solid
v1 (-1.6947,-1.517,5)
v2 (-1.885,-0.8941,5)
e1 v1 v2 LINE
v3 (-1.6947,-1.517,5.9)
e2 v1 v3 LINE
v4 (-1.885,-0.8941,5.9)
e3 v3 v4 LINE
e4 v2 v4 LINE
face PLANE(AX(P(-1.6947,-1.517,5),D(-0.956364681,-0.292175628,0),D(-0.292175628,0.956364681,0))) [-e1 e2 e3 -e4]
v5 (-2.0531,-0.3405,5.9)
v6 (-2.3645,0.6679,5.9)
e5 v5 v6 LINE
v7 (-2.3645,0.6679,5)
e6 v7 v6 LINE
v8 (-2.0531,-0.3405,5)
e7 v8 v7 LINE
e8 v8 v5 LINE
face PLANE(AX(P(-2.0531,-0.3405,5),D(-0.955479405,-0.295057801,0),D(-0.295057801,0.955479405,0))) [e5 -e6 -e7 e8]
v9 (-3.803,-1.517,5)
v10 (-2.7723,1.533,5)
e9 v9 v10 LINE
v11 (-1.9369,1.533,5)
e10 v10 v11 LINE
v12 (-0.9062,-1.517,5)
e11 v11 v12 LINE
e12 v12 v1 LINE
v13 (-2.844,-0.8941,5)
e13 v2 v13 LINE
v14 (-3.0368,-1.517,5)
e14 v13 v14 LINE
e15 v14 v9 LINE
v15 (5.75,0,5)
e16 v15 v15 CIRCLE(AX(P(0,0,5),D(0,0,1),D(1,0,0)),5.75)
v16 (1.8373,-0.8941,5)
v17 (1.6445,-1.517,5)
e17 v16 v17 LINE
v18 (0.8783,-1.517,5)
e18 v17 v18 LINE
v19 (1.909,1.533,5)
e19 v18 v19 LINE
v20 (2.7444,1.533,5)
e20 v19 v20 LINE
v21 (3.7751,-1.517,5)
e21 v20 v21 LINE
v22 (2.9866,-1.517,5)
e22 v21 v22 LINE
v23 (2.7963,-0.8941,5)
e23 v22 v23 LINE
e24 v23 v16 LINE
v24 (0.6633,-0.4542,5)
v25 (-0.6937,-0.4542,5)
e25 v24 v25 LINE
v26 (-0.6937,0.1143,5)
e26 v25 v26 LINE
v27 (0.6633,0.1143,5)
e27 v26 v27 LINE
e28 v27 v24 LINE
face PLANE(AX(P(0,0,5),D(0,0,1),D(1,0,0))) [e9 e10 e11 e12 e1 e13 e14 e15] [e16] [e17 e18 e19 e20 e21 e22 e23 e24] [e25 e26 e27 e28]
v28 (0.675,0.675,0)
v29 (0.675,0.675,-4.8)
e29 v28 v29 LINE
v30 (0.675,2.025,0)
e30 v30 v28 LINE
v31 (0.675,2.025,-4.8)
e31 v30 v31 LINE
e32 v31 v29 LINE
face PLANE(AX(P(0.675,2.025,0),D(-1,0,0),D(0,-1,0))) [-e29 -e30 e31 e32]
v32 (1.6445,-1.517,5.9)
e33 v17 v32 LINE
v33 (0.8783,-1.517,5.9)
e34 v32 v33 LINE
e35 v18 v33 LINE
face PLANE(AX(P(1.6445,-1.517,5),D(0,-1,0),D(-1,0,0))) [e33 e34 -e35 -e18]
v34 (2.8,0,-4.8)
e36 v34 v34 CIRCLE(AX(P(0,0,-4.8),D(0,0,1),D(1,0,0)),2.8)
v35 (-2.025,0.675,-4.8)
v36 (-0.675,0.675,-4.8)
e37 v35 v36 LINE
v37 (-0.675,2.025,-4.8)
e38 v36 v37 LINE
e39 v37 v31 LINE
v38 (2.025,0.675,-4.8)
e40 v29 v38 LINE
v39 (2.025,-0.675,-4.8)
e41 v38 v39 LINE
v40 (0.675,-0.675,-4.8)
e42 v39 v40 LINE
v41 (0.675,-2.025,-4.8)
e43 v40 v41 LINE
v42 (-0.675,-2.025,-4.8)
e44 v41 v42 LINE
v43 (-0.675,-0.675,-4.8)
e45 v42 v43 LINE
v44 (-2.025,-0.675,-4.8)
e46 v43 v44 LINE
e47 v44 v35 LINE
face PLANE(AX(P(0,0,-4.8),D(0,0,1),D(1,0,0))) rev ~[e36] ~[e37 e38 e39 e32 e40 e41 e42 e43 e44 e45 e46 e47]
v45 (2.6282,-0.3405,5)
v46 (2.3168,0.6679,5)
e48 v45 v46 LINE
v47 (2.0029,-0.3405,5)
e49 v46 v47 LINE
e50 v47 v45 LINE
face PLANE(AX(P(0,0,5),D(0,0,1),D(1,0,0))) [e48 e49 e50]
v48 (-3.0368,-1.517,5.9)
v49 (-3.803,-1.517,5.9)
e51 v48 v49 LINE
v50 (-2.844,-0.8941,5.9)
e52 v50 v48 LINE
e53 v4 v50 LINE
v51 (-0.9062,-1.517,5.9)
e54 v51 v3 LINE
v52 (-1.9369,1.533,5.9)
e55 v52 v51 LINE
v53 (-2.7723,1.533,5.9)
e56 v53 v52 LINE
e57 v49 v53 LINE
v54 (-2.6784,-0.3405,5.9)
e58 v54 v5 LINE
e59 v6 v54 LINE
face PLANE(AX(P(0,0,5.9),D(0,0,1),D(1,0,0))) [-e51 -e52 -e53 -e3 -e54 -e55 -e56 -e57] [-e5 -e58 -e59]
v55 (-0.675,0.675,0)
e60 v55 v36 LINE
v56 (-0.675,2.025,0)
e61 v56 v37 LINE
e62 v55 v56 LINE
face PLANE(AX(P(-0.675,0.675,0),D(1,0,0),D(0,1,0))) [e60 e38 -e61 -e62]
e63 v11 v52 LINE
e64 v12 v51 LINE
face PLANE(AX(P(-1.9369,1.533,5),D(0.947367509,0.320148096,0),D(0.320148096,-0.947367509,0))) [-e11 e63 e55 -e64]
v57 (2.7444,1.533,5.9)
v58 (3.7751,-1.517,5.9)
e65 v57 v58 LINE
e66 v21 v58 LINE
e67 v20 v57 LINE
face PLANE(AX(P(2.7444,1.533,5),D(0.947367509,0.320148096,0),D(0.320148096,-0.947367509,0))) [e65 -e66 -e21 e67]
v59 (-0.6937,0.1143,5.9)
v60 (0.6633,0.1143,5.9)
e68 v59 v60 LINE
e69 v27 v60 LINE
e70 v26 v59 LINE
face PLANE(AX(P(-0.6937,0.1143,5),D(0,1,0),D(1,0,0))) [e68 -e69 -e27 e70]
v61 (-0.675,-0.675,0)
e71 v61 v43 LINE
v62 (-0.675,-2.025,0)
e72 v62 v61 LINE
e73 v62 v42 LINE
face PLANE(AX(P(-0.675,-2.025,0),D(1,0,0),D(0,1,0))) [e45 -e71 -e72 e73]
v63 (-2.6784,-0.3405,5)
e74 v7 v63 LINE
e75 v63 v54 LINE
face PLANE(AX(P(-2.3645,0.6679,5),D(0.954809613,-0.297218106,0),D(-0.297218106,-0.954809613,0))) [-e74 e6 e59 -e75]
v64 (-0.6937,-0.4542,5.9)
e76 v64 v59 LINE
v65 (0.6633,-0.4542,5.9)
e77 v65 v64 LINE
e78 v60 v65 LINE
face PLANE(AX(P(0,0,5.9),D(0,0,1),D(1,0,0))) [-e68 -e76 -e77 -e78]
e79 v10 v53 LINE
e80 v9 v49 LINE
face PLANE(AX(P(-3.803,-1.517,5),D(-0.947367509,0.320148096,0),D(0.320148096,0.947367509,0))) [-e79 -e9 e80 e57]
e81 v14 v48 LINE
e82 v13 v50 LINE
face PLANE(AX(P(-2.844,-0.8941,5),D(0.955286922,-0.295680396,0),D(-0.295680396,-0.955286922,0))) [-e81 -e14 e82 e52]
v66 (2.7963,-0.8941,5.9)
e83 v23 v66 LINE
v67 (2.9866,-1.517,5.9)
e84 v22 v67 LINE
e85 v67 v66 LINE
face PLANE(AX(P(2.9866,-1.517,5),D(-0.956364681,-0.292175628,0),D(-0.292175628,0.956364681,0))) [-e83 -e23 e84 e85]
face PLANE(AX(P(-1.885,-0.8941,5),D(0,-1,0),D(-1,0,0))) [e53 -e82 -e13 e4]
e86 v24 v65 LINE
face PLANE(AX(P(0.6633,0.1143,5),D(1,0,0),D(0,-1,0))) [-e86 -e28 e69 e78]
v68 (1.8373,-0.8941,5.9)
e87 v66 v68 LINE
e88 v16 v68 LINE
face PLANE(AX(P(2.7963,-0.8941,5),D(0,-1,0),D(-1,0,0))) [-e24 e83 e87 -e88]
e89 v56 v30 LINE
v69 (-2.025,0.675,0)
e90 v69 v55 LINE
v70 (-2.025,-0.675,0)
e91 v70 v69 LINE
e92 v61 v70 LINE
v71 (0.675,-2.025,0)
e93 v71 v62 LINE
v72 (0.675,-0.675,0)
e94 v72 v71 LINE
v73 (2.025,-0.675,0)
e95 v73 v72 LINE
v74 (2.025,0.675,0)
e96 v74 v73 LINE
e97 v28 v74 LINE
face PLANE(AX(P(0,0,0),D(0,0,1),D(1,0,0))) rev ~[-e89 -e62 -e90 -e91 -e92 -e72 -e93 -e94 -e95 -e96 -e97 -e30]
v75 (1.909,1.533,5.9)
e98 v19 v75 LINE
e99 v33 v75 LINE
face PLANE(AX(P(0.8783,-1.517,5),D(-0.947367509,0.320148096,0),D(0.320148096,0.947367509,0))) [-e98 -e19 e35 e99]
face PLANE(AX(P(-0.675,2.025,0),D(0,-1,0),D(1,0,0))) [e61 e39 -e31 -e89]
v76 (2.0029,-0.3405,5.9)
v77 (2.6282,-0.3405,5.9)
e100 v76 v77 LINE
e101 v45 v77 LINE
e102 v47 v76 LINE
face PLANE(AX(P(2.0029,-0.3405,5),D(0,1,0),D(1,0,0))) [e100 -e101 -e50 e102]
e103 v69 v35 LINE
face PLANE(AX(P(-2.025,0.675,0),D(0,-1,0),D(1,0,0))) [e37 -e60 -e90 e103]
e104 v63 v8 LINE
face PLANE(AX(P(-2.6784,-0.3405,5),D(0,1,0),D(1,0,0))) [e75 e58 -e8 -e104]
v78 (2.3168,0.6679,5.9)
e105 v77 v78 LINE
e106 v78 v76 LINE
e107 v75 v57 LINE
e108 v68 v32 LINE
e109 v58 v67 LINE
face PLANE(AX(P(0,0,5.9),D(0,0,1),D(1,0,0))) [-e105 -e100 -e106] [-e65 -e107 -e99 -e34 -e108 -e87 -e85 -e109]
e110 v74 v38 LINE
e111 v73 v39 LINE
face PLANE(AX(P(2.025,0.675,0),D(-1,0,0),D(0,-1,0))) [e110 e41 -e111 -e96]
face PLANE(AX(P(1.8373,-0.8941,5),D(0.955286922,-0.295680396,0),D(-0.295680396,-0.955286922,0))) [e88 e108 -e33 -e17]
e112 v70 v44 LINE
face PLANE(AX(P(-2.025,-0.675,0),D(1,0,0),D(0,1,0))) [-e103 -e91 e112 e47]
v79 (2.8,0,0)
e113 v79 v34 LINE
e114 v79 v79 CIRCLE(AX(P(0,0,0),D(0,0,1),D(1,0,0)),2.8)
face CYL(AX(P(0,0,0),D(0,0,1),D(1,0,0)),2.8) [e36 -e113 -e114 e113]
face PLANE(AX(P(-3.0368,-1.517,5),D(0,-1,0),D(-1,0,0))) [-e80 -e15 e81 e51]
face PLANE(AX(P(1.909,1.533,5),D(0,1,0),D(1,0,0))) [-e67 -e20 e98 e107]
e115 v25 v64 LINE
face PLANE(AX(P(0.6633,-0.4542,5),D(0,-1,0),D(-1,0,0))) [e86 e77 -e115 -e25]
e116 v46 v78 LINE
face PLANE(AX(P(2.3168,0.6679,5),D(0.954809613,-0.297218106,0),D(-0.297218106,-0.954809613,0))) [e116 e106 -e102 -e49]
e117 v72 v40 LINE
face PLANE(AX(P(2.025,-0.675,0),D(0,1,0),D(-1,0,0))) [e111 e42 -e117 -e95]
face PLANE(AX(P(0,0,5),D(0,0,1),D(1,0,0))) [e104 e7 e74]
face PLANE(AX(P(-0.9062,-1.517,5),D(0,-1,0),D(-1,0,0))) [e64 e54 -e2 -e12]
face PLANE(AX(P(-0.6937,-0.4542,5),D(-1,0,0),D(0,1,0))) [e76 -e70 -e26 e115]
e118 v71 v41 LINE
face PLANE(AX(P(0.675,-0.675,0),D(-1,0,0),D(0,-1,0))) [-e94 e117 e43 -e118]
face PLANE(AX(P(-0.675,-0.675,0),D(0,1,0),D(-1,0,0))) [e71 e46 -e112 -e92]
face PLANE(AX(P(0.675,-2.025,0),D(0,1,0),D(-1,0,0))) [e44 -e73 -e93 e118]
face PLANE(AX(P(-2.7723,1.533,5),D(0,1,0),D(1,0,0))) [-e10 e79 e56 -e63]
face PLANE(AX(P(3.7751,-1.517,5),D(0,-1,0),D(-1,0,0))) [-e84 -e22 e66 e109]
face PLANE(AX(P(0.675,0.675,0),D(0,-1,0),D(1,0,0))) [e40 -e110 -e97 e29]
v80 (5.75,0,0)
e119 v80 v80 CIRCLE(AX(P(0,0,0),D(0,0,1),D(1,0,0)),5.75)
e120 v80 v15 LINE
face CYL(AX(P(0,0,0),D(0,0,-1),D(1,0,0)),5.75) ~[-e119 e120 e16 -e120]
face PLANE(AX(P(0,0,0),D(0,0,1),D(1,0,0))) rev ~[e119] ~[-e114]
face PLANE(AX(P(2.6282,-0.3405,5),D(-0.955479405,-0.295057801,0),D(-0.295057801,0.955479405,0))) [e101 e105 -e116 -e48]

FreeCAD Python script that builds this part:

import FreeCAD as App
import Part
import Sketcher

V = App.Vector
Q = App.Units.Quantity

doc = App.newDocument("Part")
body = doc.addObject("PartDesign::Body", "Body")

sketch1 = body.newObject("Sketcher::SketchObject", "Sketch")
sketch1.AttachmentSupport = (doc.getObject("XY_Plane"), [""])
sketch1.MapMode = "FlatFace"
sketch1.addGeometry(Part.Circle(V(0, 0, 0), V(0, 0, 1), 6), False)
sketch1.addConstraint(Sketcher.Constraint("Coincident", 0, 3, -1, 1))
sketch1.addConstraint(Sketcher.Constraint("Diameter", 0, 11.5))
pad1 = body.newObject("PartDesign::Pad", "Pad")
pad1.Profile = sketch1
pad1.Length = 5

sketch2 = body.newObject("Sketcher::SketchObject", "Sketch001")
sketch2.AttachmentSupport = (doc.getObject("XY_Plane"), [""])
sketch2.MapMode = "FlatFace"
sketch2.addGeometry(Part.Circle(V(0, 0, 0), V(0, 0, 1), 2.8), False)
sketch2.addGeometry(Part.LineSegment(V(-2, 0.7, 0), V(-0.7, 0.7, 0)), False)
sketch2.addGeometry(Part.LineSegment(V(-0.7, 0.7, 0), V(-0.7, 2, 0)), False)
sketch2.addGeometry(Part.LineSegment(V(-0.7, 2, 0), V(0.7, 2, 0)), False)
sketch2.addGeometry(Part.LineSegment(V(0.7, 2, 0), V(0.7, 0.7, 0)), False)
sketch2.addGeometry(Part.LineSegment(V(0.7, 0.7, 0), V(2, 0.7, 0)), False)
sketch2.addGeometry(Part.LineSegment(V(2, 0.7, 0), V(2, -0.7, 0)), False)
sketch2.addGeometry(Part.LineSegment(V(2, -0.7, 0), V(0.7, -0.7, 0)), False)
sketch2.addGeometry(Part.LineSegment(V(0.7, -0.7, 0), V(0.7, -2, 0)), False)
sketch2.addGeometry(Part.LineSegment(V(0.7, -2, 0), V(-0.7, -2, 0)), False)
sketch2.addGeometry(Part.LineSegment(V(-0.7, -2, 0), V(-0.7, -0.7, 0)), False)
sketch2.addGeometry(Part.LineSegment(V(-0.7, -0.7, 0), V(-2, -0.7, 0)), False)
sketch2.addGeometry(Part.LineSegment(V(-2, -0.7, 0), V(-2, 0.7, 0)), False)
sketch2.addConstraint(Sketcher.Constraint("Coincident", 1, 2, 2, 1))
sketch2.addConstraint(Sketcher.Constraint("Coincident", 2, 2, 3, 1))
sketch2.addConstraint(Sketcher.Constraint("Coincident", 3, 2, 4, 1))
sketch2.addConstraint(Sketcher.Constraint("Coincident", 4, 2, 5, 1))
sketch2.addConstraint(Sketcher.Constraint("Coincident", 5, 2, 6, 1))
sketch2.addConstraint(Sketcher.Constraint("Coincident", 6, 2, 7, 1))
sketch2.addConstraint(Sketcher.Constraint("Coincident", 7, 2, 8, 1))
sketch2.addConstraint(Sketcher.Constraint("Coincident", 8, 2, 9, 1))
sketch2.addConstraint(Sketcher.Constraint("Coincident", 9, 2, 10, 1))
sketch2.addConstraint(Sketcher.Constraint("Coincident", 10, 2, 11, 1))
sketch2.addConstraint(Sketcher.Constraint("Coincident", 11, 2, 12, 1))
sketch2.addConstraint(Sketcher.Constraint("Coincident", 12, 2, 1, 1))
sketch2.addConstraint(Sketcher.Constraint("Horizontal", 1))
sketch2.addConstraint(Sketcher.Constraint("Vertical", 2))
sketch2.addConstraint(Sketcher.Constraint("Horizontal", 3))
sketch2.addConstraint(Sketcher.Constraint("Vertical", 4))
sketch2.addConstraint(Sketcher.Constraint("Horizontal", 5))
sketch2.addConstraint(Sketcher.Constraint("Vertical", 6))
sketch2.addConstraint(Sketcher.Constraint("Horizontal", 7))
sketch2.addConstraint(Sketcher.Constraint("Vertical", 8))
sketch2.addConstraint(Sketcher.Constraint("Horizontal", 9))
sketch2.addConstraint(Sketcher.Constraint("Vertical", 10))
sketch2.addConstraint(Sketcher.Constraint("Horizontal", 11))
sketch2.addConstraint(Sketcher.Constraint("Vertical", 12))
sketch2.addConstraint(Sketcher.Constraint("Coincident", 0, 3, -1, 1))
sketch2.addConstraint(Sketcher.Constraint("Symmetric", 1, 2, 7, 2, -1, 1))
sketch2.addConstraint(Sketcher.Constraint("Symmetric", 3, 2, 9, 2, -1, 1))
sketch2.addConstraint(Sketcher.Constraint("Symmetric", 5, 2, 11, 2, -1, 1))
sketch2.addConstraint(Sketcher.Constraint("Symmetric", 1, 2, 4, 2, -2))
sketch2.addConstraint(Sketcher.Constraint("Equal", 1, 3))
sketch2.addConstraint(Sketcher.Constraint("Equal", 11, 2))
sketch2.addConstraint(Sketcher.Constraint("Equal", 4, 6))
sketch2.addConstraint(Sketcher.Constraint("Diameter", 0, 5.6))
sketch2.addConstraint(Sketcher.Constraint("DistanceX", 1, 1, 1, 2, 1.35))
pad2 = body.newObject("PartDesign::Pad", "Pad001")
pad2.Profile = sketch2
pad2.Length = 4.8
pad2.Reversed = True

sketch3 = body.newObject("Sketcher::SketchObject", "Sketch002")
sketch3.AttachmentSupport = (doc.getObject("XY_Plane"), [""])
sketch3.MapMode = "FlatFace"
sketch3.AttachmentOffset = App.Placement(V(0, 0, 5), App.Rotation())
sketch3.addGeometry(Part.LineSegment(V(-2.8, 1.5, 0), V(-3.8, -1.5, 0)), False)
sketch3.addGeometry(Part.LineSegment(V(-3.8, -1.5, 0), V(-3, -1.5, 0)), False)
sketch3.addGeometry(Part.LineSegment(V(-3, -1.5, 0), V(-2.8, -0.9, 0)), False)
sketch3.addGeometry(Part.LineSegment(V(-2.8, -0.9, 0), V(-1.9, -0.9, 0)), False)
sketch3.addGeometry(Part.LineSegment(V(-1.9, -0.9, 0), V(-1.7, -1.5, 0)), False)
sketch3.addGeometry(Part.LineSegment(V(-1.7, -1.5, 0), V(-0.9, -1.5, 0)), False)
sketch3.addGeometry(Part.LineSegment(V(-0.9, -1.5, 0), V(-1.9, 1.5, 0)), False)
sketch3.addGeometry(Part.LineSegment(V(-1.9, 1.5, 0), V(-2.8, 1.5, 0)), False)
sketch3.addGeometry(Part.LineSegment(V(-2.4, 0.7, 0), V(-2.1, -0.3, 0)), False)
sketch3.addGeometry(Part.LineSegment(V(-2.1, -0.3, 0), V(-2.7, -0.3, 0)), False)
sketch3.addGeometry(Part.LineSegment(V(-2.7, -0.3, 0), V(-2.4, 0.7, 0)), False)
sketch3.addGeometry(Part.LineSegment(V(-0.7, -0.5, 0), V(0.7, -0.5, 0)), False)
sketch3.addGeometry(Part.LineSegment(V(0.7, -0.5, 0), V(0.7, 0.1, 0)), False)
sketch3.addGeometry(Part.LineSegment(V(0.7, 0.1, 0), V(-0.7, 0.1, 0)), False)
sketch3.addGeometry(Part.LineSegment(V(-0.7, 0.1, 0), V(-0.7, -0.5, 0)), False)
sketch3.addGeometry(Part.LineSegment(V(1.9, 1.5, 0), V(0.9, -1.5, 0)), False)
sketch3.addGeometry(Part.LineSegment(V(0.9, -1.5, 0), V(1.6, -1.5, 0)), False)
sketch3.addGeometry(Part.LineSegment(V(1.6, -1.5, 0), V(1.8, -0.9, 0)), False)
sketch3.addGeometry(Part.LineSegment(V(1.8, -0.9, 0), V(2.8, -0.9, 0)), False)
sketch3.addGeometry(Part.LineSegment(V(2.8, -0.9, 0), V(3, -1.5, 0)), False)
sketch3.addGeometry(Part.LineSegment(V(3, -1.5, 0), V(3.8, -1.5, 0)), False)
sketch3.addGeometry(Part.LineSegment(V(3.8, -1.5, 0), V(2.7, 1.5, 0)), False)
sketch3.addGeometry(Part.LineSegment(V(2.7, 1.5, 0), V(1.9, 1.5, 0)), False)
sketch3.addGeometry(Part.LineSegment(V(2.3, 0.7, 0), V(2.6, -0.3, 0)), False)
sketch3.addGeometry(Part.LineSegment(V(2.6, -0.3, 0), V(2, -0.3, 0)), False)
sketch3.addGeometry(Part.LineSegment(V(2, -0.3, 0), V(2.3, 0.7, 0)), False)
sketch3.addConstraint(Sketcher.Constraint("Coincident", 0, 2, 1, 1))
sketch3.addConstraint(Sketcher.Constraint("Coincident", 1, 2, 2, 1))
sketch3.addConstraint(Sketcher.Constraint("Coincident", 2, 2, 3, 1))
sketch3.addConstraint(Sketcher.Constraint("Coincident", 3, 2, 4, 1))
sketch3.addConstraint(Sketcher.Constraint("Coincident", 4, 2, 5, 1))
sketch3.addConstraint(Sketcher.Constraint("Coincident", 5, 2, 6, 1))
sketch3.addConstraint(Sketcher.Constraint("Coincident", 6, 2, 7, 1))
sketch3.addConstraint(Sketcher.Constraint("Coincident", 7, 2, 0, 1))
sketch3.addConstraint(Sketcher.Constraint("Coincident", 8, 2, 9, 1))
sketch3.addConstraint(Sketcher.Constraint("Coincident", 9, 2, 10, 1))
sketch3.addConstraint(Sketcher.Constraint("Coincident", 10, 2, 8, 1))
sketch3.addConstraint(Sketcher.Constraint("Coincident", 11, 2, 12, 1))
sketch3.addConstraint(Sketcher.Constraint("Coincident", 12, 2, 13, 1))
sketch3.addConstraint(Sketcher.Constraint("Coincident", 13, 2, 14, 1))
sketch3.addConstraint(Sketcher.Constraint("Coincident", 14, 2, 11, 1))
sketch3.addConstraint(Sketcher.Constraint("Coincident", 15, 2, 16, 1))
sketch3.addConstraint(Sketcher.Constraint("Coincident", 16, 2, 17, 1))
sketch3.addConstraint(Sketcher.Constraint("Coincident", 17, 2, 18, 1))
sketch3.addConstraint(Sketcher.Constraint("Coincident", 18, 2, 19, 1))
sketch3.addConstraint(Sketcher.Constraint("Coincident", 19, 2, 20, 1))
sketch3.addConstraint(Sketcher.Constraint("Coincident", 20, 2, 21, 1))
sketch3.addConstraint(Sketcher.Constraint("Coincident", 21, 2, 22, 1))
sketch3.addConstraint(Sketcher.Constraint("Coincident", 22, 2, 15, 1))
sketch3.addConstraint(Sketcher.Constraint("Coincident", 23, 2, 24, 1))
sketch3.addConstraint(Sketcher.Constraint("Coincident", 24, 2, 25, 1))
sketch3.addConstraint(Sketcher.Constraint("Coincident", 25, 2, 23, 1))
sketch3.addConstraint(Sketcher.Constraint("Horizontal", 1))
sketch3.addConstraint(Sketcher.Constraint("Horizontal", 3))
sketch3.addConstraint(Sketcher.Constraint("Horizontal", 5))
sketch3.addConstraint(Sketcher.Constraint("Horizontal", 7))
sketch3.addConstraint(Sketcher.Constraint("Horizontal", 9))
sketch3.addConstraint(Sketcher.Constraint("Horizontal", 11))
sketch3.addConstraint(Sketcher.Constraint("Vertical", 12))
sketch3.addConstraint(Sketcher.Constraint("Horizontal", 13))
sketch3.addConstraint(Sketcher.Constraint("Vertical", 14))
sketch3.addConstraint(Sketcher.Constraint("Horizontal", 16))
sketch3.addConstraint(Sketcher.Constraint("Horizontal", 18))
sketch3.addConstraint(Sketcher.Constraint("Horizontal", 20))
sketch3.addConstraint(Sketcher.Constraint("Horizontal", 22))
sketch3.addConstraint(Sketcher.Constraint("Horizontal", 24))
sketch3.addConstraint(Sketcher.Constraint("Parallel", 0, 15))
sketch3.addConstraint(Sketcher.Constraint("Parallel", 2, 17))
sketch3.addConstraint(Sketcher.Constraint("Parallel", 4, 19))
sketch3.addConstraint(Sketcher.Constraint("Parallel", 6, 21))
sketch3.addConstraint(Sketcher.Constraint("Parallel", 8, 23))
sketch3.addConstraint(Sketcher.Constraint("Parallel", 10, 25))
sketch3.addConstraint(Sketcher.Constraint("Horizontal", 1, 2, 4, 2))
sketch3.addConstraint(Sketcher.Constraint("Horizontal", 5, 2, 15, 2))
sketch3.addConstraint(Sketcher.Constraint("Horizontal", 3, 2, 17, 2))
sketch3.addConstraint(Sketcher.Constraint("Horizontal", 16, 2, 19, 2))
sketch3.addConstraint(Sketcher.Constraint("Horizontal", 7, 2, 21, 2))
sketch3.addConstraint(Sketcher.Constraint("Horizontal", 9, 2, 23, 2))
sketch3.addConstraint(Sketcher.Constraint("Horizontal", 10, 2, 25, 2))
sketch3.addConstraint(Sketcher.Constraint("Equal", 1, 16))
sketch3.addConstraint(Sketcher.Constraint("Equal", 3, 18))
sketch3.addConstraint(Sketcher.Constraint("Equal", 5, 20))
sketch3.addConstraint(Sketcher.Constraint("Equal", 0, 6))
sketch3.addConstraint(Sketcher.Constraint("Angle", 8, Q("-72.839 deg")))
sketch3.addConstraint(Sketcher.Constraint("Angle", 10, Q("72.7094 deg")))
sketch3.addConstraint(Sketcher.Constraint("DistanceX", 1, 2, 6, 2, 1.1))
sketch3.addConstraint(Sketcher.Constraint("DistanceX", 3, 1, 3, 2, 0.959))
sketch3.addConstraint(Sketcher.Constraint("DistanceX", 11, 1, 11, 2, 1.357))
sketch3.addConstraint(Sketcher.Constraint("DistanceY", 4, 2, 6, 2, 3.05))
sketch3.addConstraint(Sketcher.Constraint("DistanceY", 3, 2, 11, 2, 0.44))
sketch3.addConstraint(Sketcher.Constraint("Distance", 2, 0.652))
sketch3.addConstraint(Sketcher.Constraint("DistanceX", 1, 1, 1, 2, 0.7662))
sketch3.addConstraint(Sketcher.Constraint("DistanceX", 5, 1, 5, 2, 0.7885))
sketch3.addConstraint(Sketcher.Constraint("DistanceX", 7, 2, 7, 1, 0.8354))
sketch3.addConstraint(Sketcher.Constraint("DistanceX", 9, 2, 9, 1, 0.6253))
sketch3.addConstraint(Sketcher.Constraint("DistanceY", 12, 1, 12, 2, 0.5685))
sketch3.addConstraint(Sketcher.Constraint("DistanceX", 0, 2, -1, 1, 3.803))
sketch3.addConstraint(Sketcher.Constraint("DistanceY", 0, 2, -1, 1, 1.517))
sketch3.addConstraint(Sketcher.Constraint("DistanceX", 2, 2, -1, 1, 2.844))
sketch3.addConstraint(Sketcher.Constraint("DistanceX", 8, 2, -1, 1, 2.053))
sketch3.addConstraint(Sketcher.Constraint("DistanceY", -1, 1, 10, 2, 0.668))
sketch3.addConstraint(Sketcher.Constraint("DistanceX", -1, 1, 20, 2, 3.775))
sketch3.addConstraint(Sketcher.Constraint("DistanceX", -1, 1, 24, 2, 2.003))
sketch3.addConstraint(Sketcher.Constraint("DistanceX", 4, 2, 11, 2, 2.358))
pad3 = body.newObject("PartDesign::Pad", "Pad002")
pad3.Profile = sketch3
pad3.Length = 0.9

doc.recompute()
